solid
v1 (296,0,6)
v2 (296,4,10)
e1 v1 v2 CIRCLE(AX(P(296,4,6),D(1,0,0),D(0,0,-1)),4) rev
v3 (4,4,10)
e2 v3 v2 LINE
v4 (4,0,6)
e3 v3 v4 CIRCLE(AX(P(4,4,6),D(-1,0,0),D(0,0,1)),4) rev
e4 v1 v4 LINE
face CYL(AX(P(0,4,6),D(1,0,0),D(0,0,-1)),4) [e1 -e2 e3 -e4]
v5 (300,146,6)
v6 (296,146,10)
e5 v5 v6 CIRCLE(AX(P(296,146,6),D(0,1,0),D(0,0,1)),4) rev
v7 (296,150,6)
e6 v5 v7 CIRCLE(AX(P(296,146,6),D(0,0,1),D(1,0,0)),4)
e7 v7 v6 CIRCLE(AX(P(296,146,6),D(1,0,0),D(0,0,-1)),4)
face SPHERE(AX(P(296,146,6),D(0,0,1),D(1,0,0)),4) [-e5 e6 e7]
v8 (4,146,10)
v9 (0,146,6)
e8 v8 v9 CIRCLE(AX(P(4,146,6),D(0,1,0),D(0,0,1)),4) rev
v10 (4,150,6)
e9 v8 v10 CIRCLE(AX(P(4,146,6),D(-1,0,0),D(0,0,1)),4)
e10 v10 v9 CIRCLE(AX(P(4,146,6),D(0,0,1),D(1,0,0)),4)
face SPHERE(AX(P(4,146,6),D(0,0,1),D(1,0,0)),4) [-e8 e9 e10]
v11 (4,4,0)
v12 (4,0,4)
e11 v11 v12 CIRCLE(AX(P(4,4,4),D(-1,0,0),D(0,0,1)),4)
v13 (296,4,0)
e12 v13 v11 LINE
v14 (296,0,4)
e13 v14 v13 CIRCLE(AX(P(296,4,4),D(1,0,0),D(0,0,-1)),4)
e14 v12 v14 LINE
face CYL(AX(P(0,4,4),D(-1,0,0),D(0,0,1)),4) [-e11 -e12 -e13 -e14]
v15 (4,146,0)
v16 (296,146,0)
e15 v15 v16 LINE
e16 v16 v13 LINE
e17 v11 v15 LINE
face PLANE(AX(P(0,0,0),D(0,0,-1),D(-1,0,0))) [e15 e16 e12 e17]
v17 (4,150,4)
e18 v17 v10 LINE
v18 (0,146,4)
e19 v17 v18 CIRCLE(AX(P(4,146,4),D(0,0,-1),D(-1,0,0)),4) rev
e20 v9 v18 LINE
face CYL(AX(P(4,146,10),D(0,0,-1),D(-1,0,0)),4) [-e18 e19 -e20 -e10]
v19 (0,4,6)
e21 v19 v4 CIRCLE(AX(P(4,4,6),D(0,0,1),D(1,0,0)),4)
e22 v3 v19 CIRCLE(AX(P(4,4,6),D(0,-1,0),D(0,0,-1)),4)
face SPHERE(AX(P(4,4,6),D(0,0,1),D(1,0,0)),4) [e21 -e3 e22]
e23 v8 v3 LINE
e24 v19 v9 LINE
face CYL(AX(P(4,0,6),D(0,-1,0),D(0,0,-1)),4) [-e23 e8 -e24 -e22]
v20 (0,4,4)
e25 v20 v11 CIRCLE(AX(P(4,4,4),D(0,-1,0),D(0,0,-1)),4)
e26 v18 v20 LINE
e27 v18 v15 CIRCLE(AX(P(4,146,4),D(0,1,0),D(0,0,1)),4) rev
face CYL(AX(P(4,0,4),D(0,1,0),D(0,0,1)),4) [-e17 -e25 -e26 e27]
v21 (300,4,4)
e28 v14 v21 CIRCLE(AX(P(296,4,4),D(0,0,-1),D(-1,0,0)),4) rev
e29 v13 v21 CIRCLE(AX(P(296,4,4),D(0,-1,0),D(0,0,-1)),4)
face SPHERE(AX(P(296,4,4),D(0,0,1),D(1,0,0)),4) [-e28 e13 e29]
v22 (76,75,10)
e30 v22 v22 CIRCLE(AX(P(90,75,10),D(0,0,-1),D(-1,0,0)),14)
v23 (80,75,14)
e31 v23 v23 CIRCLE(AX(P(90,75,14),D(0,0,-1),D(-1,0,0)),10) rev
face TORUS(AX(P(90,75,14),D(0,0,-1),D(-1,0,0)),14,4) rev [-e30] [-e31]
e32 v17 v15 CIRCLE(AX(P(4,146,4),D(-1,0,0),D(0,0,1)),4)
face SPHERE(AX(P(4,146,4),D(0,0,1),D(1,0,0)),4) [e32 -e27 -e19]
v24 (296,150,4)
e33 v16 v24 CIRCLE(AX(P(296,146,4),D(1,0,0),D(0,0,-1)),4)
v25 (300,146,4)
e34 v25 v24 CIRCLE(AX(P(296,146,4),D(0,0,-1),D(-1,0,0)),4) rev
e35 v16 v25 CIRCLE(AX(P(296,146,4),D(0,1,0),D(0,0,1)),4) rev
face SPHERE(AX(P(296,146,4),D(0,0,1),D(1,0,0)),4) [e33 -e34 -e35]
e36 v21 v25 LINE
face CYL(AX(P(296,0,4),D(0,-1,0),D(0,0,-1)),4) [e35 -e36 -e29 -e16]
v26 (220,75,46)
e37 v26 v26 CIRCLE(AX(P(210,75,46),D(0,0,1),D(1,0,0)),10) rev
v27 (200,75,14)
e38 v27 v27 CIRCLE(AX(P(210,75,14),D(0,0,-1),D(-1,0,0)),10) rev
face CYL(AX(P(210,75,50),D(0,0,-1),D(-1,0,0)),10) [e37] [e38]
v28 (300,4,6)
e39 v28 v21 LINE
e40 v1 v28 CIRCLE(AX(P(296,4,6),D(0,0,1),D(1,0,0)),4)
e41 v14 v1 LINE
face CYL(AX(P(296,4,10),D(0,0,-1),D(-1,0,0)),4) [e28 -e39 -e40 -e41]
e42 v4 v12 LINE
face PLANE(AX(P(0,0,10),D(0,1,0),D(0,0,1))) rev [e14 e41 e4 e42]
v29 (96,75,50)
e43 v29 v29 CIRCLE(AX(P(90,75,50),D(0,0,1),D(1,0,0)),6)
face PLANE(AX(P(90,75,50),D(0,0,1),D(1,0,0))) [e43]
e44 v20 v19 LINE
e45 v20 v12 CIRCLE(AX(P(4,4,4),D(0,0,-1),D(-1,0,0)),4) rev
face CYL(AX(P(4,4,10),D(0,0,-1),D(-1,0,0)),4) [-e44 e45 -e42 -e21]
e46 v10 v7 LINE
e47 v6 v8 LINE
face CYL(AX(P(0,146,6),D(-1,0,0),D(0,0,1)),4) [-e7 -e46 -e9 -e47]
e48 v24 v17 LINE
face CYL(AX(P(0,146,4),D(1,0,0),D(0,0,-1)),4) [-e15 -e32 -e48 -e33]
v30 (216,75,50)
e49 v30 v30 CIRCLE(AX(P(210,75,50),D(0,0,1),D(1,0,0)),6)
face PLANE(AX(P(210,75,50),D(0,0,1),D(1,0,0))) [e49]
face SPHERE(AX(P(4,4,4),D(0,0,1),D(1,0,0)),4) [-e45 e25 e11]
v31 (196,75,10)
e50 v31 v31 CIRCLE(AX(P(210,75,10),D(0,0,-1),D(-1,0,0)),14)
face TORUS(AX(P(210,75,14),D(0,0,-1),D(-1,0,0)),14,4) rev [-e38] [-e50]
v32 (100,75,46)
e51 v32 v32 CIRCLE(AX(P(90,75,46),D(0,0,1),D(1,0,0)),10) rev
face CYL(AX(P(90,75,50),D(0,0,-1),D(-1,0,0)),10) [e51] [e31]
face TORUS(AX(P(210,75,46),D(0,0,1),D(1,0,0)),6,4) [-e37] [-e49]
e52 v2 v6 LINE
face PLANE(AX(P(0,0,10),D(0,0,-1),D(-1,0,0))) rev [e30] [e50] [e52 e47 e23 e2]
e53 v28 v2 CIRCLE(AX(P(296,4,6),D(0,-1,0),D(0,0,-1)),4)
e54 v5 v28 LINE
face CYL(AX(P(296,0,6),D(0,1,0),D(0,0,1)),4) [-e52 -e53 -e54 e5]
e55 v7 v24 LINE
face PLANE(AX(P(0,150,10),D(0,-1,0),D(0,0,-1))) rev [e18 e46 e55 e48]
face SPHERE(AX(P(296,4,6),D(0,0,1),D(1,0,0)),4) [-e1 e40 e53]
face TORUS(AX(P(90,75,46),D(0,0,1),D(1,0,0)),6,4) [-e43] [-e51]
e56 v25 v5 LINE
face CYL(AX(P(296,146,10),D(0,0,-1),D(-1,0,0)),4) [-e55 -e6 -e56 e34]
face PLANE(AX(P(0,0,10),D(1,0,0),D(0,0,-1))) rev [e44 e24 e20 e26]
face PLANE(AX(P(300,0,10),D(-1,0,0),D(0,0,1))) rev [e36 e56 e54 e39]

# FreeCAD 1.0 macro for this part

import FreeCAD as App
import Part
import Sketcher
from FreeCAD import Vector
Q = App.Units.Quantity

doc = App.newDocument("Part")
body = doc.addObject("PartDesign::Body", "Body")

sketch1 = doc.addObject("Sketcher::SketchObject", "Sketch")
body.addObject(sketch1)
sketch1.AttachmentSupport = (doc.XY_Plane, [""])
sketch1.MapMode = "FlatFace"
sketch1.addGeometry(Part.LineSegment(Vector(0, 150, 0), Vector(0, 0, 0)), False)
sketch1.addGeometry(Part.LineSegment(Vector(0, 0, 0), Vector(300, 0, 0)), False)
sketch1.addGeometry(Part.LineSegment(Vector(300, 0, 0), Vector(300, 150, 0)), False)
sketch1.addGeometry(Part.LineSegment(Vector(300, 150, 0), Vector(0, 150, 0)), False)
sketch1.addConstraint(Sketcher.Constraint("Coincident", 0, 2, 1, 1))
sketch1.addConstraint(Sketcher.Constraint("Coincident", 1, 2, 2, 1))
sketch1.addConstraint(Sketcher.Constraint("Coincident", 2, 2, 3, 1))
sketch1.addConstraint(Sketcher.Constraint("Coincident", 3, 2, 0, 1))
sketch1.addConstraint(Sketcher.Constraint("Vertical", 0))
sketch1.addConstraint(Sketcher.Constraint("Horizontal", 1))
sketch1.addConstraint(Sketcher.Constraint("Vertical", 2))
sketch1.addConstraint(Sketcher.Constraint("Horizontal", 3))
sketch1.addConstraint(Sketcher.Constraint("Coincident", 0, 2, -1, 1))
sketch1.addConstraint(Sketcher.Constraint("DistanceX", 1, 1, 1, 2, Q("300 mm")))
sketch1.addConstraint(Sketcher.Constraint("DistanceY", 0, 2, 0, 1, Q("150 mm")))
pad1 = doc.addObject("PartDesign::Pad", "Pad")
body.addObject(pad1)
pad1.Profile = sketch1
pad1.Length = 10

sketch2 = doc.addObject("Sketcher::SketchObject", "Sketch001")
body.addObject(sketch2)
sketch2.AttachmentSupport = (doc.XY_Plane, [""])
sketch2.MapMode = "FlatFace"
sketch2.AttachmentOffset = App.Placement(Vector(0, 0, 10), App.Rotation())
sketch2.addGeometry(Part.Circle(Vector(90, 75, 0), Vector(0, 0, 1), 10), False)
sketch2.addGeometry(Part.Circle(Vector(210, 75, 0), Vector(0, 0, 1), 10), False)
sketch2.addConstraint(Sketcher.Constraint("Equal", 0, 1))
sketch2.addConstraint(Sketcher.Constraint("Horizontal", 0, 3, 1, 3))
sketch2.addConstraint(Sketcher.Constraint("Diameter", 0, Q("20 mm")))
sketch2.addConstraint(Sketcher.Constraint("DistanceX", -1, 1, 0, 3, Q("90 mm")))
sketch2.addConstraint(Sketcher.Constraint("DistanceY", -1, 1, 0, 3, Q("75 mm")))
sketch2.addConstraint(Sketcher.Constraint("DistanceX", -1, 1, 1, 3, Q("210 mm")))
pad2 = doc.addObject("PartDesign::Pad", "Pad001")
body.addObject(pad2)
pad2.Profile = sketch2
pad2.Length = 40
doc.recompute()

fillet = doc.addObject("PartDesign::Fillet", "Fillet")
body.addObject(fillet)
fillet.Base = (pad2, ["Edge1"])
fillet.UseAllEdges = True
fillet.Radius = 4

doc.recompute()
